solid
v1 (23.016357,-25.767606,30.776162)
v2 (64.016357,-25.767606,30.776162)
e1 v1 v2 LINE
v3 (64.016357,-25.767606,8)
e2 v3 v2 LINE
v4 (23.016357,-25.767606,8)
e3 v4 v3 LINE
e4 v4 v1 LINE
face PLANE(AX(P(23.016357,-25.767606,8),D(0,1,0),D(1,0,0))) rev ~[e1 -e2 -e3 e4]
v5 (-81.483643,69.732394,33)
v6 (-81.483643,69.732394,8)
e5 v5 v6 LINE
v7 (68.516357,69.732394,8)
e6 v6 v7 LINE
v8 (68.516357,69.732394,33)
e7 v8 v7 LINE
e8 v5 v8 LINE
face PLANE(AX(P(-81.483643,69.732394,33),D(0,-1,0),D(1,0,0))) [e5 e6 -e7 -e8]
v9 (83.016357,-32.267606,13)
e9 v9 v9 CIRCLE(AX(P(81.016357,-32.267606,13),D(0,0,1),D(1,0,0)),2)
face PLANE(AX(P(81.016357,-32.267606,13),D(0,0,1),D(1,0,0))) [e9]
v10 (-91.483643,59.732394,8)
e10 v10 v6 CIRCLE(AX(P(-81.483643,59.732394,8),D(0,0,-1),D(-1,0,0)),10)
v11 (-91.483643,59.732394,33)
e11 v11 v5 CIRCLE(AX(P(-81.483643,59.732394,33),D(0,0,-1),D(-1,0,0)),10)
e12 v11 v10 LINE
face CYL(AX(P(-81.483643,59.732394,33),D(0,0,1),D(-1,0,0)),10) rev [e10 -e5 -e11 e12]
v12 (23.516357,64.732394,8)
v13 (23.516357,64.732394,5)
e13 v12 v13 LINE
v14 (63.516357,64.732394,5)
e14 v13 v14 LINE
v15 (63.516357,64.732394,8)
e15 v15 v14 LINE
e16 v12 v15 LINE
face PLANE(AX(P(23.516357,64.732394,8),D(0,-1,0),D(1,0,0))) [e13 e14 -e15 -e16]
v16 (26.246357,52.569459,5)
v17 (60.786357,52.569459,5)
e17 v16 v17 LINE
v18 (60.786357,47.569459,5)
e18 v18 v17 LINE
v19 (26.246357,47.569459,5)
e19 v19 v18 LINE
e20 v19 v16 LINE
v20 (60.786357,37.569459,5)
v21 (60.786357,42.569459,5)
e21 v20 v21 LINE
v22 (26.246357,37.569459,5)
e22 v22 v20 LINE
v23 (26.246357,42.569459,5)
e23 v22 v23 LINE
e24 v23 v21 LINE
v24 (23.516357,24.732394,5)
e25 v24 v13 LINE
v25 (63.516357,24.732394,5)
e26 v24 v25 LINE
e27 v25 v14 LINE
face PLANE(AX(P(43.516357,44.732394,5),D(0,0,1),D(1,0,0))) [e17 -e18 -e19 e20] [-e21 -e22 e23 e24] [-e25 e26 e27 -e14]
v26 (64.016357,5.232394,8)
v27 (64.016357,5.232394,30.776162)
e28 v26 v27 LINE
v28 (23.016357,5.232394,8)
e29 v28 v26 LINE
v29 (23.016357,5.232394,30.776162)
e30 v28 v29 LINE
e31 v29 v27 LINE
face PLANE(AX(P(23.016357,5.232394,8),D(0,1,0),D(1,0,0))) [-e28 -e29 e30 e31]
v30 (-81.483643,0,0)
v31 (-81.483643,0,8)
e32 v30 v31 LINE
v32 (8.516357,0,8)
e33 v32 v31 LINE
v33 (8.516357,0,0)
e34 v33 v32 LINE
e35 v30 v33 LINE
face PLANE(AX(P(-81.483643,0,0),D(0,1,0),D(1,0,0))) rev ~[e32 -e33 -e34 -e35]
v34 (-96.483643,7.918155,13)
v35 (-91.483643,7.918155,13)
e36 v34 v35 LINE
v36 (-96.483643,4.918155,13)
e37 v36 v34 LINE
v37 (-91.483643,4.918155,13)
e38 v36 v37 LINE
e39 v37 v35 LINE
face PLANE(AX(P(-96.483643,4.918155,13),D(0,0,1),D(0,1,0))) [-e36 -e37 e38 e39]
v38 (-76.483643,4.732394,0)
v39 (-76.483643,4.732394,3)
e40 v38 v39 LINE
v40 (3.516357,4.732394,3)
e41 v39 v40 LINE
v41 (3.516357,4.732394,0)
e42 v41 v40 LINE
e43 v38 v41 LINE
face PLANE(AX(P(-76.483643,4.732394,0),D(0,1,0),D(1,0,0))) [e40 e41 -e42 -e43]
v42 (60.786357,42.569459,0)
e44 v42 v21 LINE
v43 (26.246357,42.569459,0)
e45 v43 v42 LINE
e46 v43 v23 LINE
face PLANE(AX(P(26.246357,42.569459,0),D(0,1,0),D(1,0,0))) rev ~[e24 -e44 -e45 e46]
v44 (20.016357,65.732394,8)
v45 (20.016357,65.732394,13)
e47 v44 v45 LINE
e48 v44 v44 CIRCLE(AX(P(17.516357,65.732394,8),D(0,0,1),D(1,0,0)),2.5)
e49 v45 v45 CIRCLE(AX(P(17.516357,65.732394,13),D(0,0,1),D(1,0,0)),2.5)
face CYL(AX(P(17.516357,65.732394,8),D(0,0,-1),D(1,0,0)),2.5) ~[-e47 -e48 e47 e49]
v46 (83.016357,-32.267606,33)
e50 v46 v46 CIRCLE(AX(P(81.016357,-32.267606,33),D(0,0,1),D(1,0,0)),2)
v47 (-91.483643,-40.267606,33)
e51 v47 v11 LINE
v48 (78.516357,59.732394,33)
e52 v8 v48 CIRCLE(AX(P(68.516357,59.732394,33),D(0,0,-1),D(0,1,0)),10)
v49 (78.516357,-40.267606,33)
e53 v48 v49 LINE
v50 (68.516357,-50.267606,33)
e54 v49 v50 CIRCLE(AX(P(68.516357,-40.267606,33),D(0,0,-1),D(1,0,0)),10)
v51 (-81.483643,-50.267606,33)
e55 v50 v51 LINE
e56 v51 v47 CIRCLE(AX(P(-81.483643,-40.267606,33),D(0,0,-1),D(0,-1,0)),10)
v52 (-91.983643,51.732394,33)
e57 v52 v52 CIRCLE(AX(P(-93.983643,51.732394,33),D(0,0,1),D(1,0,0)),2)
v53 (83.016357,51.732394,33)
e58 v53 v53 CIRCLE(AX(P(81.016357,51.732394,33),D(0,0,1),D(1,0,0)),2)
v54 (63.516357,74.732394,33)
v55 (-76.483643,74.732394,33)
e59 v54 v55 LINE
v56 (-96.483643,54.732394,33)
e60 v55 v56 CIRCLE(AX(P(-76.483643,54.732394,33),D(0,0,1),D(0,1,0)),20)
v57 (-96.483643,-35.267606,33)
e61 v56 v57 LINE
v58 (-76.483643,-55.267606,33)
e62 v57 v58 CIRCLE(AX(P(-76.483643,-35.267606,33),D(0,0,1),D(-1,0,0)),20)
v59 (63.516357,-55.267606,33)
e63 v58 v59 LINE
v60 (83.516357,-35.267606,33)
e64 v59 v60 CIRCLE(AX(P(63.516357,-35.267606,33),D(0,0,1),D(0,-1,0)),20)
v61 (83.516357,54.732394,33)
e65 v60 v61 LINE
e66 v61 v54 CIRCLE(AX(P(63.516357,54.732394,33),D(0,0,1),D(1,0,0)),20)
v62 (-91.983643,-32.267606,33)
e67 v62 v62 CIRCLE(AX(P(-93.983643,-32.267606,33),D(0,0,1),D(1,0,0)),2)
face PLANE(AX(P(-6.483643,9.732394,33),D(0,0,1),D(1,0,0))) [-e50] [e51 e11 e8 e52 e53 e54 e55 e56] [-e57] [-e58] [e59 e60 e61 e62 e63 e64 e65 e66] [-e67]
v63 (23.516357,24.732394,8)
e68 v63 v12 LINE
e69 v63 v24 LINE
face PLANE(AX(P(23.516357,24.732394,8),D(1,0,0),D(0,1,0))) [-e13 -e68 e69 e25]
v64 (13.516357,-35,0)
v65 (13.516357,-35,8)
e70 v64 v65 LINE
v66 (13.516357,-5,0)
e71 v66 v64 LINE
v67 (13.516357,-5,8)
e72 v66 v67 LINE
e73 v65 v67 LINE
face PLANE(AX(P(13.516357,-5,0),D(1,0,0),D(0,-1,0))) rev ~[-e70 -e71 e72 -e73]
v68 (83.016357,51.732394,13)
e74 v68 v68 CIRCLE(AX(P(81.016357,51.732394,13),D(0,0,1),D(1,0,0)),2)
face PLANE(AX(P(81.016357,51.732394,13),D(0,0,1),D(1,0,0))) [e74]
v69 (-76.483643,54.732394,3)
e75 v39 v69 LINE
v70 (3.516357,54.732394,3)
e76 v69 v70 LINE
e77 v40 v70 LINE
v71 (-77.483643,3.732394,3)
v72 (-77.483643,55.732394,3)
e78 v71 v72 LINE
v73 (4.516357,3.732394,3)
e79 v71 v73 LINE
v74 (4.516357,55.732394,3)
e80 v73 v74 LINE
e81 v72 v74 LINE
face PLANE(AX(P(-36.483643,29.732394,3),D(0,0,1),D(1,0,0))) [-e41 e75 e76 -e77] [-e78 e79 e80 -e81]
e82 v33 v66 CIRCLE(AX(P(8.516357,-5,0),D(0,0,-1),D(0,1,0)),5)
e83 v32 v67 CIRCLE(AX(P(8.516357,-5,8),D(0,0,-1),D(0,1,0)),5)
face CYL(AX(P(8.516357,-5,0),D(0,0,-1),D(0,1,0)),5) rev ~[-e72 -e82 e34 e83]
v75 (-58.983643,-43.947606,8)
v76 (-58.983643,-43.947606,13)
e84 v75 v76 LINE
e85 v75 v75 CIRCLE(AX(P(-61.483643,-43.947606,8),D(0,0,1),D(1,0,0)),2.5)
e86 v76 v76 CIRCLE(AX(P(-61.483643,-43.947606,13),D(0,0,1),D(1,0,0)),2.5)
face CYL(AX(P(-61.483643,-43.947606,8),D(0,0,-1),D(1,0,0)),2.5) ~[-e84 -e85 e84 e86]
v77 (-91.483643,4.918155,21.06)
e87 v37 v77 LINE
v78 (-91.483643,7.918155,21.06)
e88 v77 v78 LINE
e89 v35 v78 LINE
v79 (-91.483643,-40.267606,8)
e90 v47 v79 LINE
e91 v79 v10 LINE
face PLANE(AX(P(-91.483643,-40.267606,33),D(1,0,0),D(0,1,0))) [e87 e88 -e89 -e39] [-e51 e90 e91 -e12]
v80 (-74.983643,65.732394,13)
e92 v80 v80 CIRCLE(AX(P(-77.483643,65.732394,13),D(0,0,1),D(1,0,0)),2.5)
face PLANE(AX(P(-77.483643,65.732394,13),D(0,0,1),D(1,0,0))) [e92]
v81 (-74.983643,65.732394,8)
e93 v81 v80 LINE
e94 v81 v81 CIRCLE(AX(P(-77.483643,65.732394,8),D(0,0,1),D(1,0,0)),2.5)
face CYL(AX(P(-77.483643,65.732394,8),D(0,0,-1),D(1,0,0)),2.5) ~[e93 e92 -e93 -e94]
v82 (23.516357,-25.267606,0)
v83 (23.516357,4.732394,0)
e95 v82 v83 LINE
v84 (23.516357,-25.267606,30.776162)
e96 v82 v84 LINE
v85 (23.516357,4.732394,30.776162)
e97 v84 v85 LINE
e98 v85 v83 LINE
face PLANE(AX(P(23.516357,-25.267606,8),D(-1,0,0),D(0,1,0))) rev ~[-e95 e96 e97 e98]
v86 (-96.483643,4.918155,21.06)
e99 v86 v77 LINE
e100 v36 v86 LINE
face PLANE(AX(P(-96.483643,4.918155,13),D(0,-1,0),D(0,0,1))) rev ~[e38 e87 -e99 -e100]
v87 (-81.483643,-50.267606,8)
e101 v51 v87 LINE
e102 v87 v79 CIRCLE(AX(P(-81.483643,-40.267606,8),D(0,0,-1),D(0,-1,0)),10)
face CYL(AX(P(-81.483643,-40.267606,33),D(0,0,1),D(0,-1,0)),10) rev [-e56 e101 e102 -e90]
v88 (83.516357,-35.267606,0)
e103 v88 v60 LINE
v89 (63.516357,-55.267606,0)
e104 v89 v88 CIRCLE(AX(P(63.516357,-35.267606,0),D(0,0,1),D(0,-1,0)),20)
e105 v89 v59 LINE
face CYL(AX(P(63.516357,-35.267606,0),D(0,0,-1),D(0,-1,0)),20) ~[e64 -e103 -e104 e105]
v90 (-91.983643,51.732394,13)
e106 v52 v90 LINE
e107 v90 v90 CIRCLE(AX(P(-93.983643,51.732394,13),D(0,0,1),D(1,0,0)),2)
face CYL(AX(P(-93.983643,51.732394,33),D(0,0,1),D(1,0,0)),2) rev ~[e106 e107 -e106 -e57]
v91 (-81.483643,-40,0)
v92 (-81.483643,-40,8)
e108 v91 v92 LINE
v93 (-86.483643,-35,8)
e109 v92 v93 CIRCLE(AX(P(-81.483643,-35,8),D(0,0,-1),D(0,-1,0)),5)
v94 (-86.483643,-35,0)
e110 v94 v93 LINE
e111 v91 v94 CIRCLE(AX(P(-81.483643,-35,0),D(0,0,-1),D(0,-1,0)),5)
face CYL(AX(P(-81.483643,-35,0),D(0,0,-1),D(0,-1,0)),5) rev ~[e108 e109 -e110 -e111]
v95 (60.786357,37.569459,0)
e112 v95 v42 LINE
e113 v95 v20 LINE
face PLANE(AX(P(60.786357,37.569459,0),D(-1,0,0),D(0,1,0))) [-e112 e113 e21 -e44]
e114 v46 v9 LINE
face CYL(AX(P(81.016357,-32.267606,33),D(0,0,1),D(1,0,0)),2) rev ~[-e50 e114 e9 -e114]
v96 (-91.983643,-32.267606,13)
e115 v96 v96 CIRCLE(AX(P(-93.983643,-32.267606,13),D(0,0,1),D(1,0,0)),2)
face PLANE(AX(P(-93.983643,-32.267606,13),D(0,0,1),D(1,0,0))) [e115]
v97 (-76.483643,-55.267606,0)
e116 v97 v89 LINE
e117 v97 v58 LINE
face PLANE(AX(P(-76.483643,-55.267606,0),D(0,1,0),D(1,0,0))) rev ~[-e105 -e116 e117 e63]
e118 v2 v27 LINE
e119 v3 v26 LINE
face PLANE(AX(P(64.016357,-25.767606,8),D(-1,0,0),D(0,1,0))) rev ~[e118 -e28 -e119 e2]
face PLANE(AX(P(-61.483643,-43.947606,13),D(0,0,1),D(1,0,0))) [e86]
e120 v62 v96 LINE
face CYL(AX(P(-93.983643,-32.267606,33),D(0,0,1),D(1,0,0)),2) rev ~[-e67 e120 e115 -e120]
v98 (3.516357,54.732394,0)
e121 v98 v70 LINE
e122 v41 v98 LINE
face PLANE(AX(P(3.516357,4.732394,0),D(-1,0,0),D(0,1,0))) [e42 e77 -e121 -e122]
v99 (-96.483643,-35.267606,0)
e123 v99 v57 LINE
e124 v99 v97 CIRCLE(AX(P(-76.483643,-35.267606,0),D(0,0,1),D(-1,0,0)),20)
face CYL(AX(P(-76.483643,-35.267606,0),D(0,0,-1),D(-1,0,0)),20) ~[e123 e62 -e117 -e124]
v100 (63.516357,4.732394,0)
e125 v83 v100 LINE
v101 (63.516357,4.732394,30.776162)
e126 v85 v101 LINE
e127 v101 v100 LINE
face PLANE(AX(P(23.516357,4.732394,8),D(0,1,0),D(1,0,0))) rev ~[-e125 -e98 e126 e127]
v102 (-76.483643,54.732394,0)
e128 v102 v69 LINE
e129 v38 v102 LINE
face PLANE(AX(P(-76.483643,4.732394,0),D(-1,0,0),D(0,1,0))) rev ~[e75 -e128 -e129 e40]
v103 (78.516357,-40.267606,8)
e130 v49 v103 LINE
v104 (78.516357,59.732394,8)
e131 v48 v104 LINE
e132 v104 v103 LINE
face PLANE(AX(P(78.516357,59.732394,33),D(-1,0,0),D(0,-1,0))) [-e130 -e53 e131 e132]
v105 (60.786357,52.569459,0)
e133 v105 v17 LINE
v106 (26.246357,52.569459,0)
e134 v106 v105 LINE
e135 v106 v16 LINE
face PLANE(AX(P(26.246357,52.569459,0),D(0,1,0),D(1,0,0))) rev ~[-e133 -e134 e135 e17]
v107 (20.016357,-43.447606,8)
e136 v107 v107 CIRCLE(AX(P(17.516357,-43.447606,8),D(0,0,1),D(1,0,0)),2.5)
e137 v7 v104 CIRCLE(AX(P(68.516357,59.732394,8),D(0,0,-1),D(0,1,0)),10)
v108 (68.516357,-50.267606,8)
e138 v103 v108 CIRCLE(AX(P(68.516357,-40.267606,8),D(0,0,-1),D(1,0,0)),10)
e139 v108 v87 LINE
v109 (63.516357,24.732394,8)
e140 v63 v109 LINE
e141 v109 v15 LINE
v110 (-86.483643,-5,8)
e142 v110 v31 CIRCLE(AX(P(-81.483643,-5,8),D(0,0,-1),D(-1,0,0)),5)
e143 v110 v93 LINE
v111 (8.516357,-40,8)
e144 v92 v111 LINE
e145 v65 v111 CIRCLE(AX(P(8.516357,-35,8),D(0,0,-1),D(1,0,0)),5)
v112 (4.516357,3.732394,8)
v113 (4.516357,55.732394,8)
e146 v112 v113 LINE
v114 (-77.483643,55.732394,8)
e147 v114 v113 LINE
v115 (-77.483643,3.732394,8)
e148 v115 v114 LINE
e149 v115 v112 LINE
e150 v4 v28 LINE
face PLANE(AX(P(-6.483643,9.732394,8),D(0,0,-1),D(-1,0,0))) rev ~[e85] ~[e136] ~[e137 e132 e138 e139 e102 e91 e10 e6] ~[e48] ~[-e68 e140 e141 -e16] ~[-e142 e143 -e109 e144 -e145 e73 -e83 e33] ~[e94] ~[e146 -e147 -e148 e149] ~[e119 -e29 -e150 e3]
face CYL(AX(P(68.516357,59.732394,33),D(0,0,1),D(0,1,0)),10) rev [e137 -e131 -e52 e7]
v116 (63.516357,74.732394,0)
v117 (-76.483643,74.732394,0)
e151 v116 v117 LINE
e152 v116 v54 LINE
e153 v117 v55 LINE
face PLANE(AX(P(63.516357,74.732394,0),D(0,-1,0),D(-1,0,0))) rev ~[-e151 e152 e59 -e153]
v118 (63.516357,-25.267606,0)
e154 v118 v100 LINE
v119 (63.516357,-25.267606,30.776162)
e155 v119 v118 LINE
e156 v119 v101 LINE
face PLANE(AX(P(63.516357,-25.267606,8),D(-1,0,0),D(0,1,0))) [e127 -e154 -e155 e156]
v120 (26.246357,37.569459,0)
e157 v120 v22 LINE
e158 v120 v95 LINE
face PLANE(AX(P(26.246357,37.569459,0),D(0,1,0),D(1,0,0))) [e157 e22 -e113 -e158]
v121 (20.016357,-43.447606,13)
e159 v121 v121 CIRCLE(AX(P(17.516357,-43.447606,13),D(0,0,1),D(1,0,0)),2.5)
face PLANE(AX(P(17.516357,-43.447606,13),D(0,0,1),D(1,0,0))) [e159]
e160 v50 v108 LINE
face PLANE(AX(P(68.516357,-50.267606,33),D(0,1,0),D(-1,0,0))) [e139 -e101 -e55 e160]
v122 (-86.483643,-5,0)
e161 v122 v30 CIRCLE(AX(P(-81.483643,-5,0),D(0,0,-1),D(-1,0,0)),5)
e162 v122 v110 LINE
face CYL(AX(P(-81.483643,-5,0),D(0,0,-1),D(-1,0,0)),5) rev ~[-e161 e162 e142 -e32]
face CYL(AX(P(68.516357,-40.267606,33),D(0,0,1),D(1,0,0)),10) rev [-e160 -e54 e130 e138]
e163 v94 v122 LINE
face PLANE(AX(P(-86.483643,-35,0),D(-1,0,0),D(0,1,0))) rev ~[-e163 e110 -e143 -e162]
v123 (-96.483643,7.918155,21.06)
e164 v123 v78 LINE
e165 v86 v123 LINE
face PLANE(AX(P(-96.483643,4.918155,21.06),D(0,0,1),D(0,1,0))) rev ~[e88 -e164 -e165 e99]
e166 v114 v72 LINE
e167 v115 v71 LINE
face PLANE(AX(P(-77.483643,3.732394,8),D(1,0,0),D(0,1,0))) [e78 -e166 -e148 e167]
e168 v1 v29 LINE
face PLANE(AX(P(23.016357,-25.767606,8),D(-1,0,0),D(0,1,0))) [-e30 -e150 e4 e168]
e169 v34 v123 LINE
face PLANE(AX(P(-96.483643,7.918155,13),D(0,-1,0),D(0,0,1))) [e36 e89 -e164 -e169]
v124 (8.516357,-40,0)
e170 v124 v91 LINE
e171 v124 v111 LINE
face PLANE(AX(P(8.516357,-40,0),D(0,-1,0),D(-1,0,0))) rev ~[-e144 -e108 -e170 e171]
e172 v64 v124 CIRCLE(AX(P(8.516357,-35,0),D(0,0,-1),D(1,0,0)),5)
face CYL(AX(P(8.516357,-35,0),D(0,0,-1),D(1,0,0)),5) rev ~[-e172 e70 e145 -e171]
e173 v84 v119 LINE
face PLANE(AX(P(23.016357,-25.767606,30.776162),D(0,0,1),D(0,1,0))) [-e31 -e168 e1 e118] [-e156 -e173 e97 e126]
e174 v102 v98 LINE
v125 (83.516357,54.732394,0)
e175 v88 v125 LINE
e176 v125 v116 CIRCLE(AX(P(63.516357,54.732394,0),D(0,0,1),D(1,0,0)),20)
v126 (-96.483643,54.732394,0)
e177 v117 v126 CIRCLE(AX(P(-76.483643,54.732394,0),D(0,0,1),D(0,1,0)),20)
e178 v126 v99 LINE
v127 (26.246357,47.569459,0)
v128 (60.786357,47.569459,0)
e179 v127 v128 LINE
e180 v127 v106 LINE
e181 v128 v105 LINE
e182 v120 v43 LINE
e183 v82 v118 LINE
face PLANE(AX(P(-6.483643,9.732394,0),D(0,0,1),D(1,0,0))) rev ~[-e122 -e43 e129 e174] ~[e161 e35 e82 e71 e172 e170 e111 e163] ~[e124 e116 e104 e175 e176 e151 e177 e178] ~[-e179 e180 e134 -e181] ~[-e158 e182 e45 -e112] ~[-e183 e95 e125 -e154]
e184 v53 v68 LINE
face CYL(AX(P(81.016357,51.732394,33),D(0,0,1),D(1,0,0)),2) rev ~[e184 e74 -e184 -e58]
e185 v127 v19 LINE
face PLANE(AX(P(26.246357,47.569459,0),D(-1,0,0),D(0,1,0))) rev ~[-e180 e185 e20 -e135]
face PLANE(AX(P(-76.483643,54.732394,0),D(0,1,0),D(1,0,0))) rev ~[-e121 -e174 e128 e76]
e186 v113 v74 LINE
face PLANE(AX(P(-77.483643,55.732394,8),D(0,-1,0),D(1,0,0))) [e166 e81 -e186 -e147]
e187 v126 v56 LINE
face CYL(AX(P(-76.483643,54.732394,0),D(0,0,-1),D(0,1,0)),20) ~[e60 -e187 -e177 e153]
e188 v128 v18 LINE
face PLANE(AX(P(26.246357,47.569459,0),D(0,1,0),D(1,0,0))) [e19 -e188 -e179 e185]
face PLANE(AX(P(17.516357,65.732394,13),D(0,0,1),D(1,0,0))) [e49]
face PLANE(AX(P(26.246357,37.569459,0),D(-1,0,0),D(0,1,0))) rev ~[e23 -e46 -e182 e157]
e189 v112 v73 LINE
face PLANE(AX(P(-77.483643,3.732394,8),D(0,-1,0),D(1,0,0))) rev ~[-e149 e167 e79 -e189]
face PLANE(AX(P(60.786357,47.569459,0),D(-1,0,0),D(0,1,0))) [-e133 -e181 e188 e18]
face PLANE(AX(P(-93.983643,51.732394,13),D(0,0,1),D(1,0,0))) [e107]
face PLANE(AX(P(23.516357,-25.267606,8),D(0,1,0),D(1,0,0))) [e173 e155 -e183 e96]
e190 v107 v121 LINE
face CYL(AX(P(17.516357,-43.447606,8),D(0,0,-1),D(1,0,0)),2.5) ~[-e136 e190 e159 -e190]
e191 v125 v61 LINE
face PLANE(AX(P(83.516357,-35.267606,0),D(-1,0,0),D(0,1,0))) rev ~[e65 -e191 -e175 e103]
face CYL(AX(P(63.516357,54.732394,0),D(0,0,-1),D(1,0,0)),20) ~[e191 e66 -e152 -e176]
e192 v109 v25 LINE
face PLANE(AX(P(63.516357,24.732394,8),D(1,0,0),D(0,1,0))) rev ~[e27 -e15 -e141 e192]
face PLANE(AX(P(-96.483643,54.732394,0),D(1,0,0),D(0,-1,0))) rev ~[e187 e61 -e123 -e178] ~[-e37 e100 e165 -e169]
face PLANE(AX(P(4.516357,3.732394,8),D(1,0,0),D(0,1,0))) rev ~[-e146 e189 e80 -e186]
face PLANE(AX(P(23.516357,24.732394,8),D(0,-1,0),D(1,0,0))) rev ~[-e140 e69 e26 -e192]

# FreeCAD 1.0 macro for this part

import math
import FreeCAD as App
import Part
import Sketcher

doc = App.newDocument("Part")
body = doc.addObject("PartDesign::Body", "Body")

# Sketch on XY plane
sketch1 = body.newObject("Sketcher::SketchObject", "Sketch")
sketch1.AttachmentSupport = (doc.getObject("XY_Plane"), [""])
sketch1.MapMode = "FlatFace"
sketch1.addGeometry([
    Part.ArcOfCircle(Part.Circle(App.Vector(-76.483643, 54.732394, 0), App.Vector(0, 0, 1), 20), math.radians(90), math.radians(180)),  # 0
    Part.LineSegment(App.Vector(-96.483643, 54.732394, 0), App.Vector(-96.483643, -35.267606, 0)),  # 1
    Part.ArcOfCircle(Part.Circle(App.Vector(-76.483643, -35.267606, 0), App.Vector(0, 0, 1), 20), math.radians(-180), math.radians(-90)),  # 2
    Part.LineSegment(App.Vector(-76.483643, -55.267606, 0), App.Vector(63.516357, -55.267606, 0)),  # 3
    Part.ArcOfCircle(Part.Circle(App.Vector(63.516357, -35.267606, 0), App.Vector(0, 0, 1), 20), math.radians(-90), math.radians(0)),  # 4
    Part.LineSegment(App.Vector(83.516357, -35.267606, 0), App.Vector(83.516357, 54.732394, 0)),  # 5
    Part.ArcOfCircle(Part.Circle(App.Vector(63.516357, 54.732394, 0), App.Vector(0, 0, 1), 20), math.radians(0), math.radians(90)),  # 6
    Part.LineSegment(App.Vector(63.516357, 74.732394, 0), App.Vector(-76.483643, 74.732394, 0)),  # 7
    Part.LineSegment(App.Vector(-86.483643, -35, 0), App.Vector(-86.483643, -5, 0)),  # 8
    Part.ArcOfCircle(Part.Circle(App.Vector(-81.483643, -5, 0), App.Vector(0, 0, 1), 5), math.radians(90), math.radians(180)),  # 9
    Part.LineSegment(App.Vector(-81.483643, 0, 0), App.Vector(8.516357, 0, 0)),  # 10
    Part.ArcOfCircle(Part.Circle(App.Vector(8.516357, -5, 0), App.Vector(0, 0, 1), 5), math.radians(0), math.radians(90)),  # 11
    Part.LineSegment(App.Vector(13.516357, -5, 0), App.Vector(13.516357, -35, 0)),  # 12
    Part.ArcOfCircle(Part.Circle(App.Vector(8.516357, -35, 0), App.Vector(0, 0, 1), 5), math.radians(-90), math.radians(0)),  # 13
    Part.LineSegment(App.Vector(8.516357, -40, 0), App.Vector(-81.483643, -40, 0)),  # 14
    Part.ArcOfCircle(Part.Circle(App.Vector(-81.483643, -35, 0), App.Vector(0, 0, 1), 5), math.radians(180), math.radians(270)),  # 15
    Part.LineSegment(App.Vector(63.516357, -25.267606, 0), App.Vector(23.516357, -25.267606, 0)),  # 16
    Part.LineSegment(App.Vector(23.516357, -25.267606, 0), App.Vector(23.516357, 4.732394, 0)),  # 17
    Part.LineSegment(App.Vector(23.516357, 4.732394, 0), App.Vector(63.516357, 4.732394, 0)),  # 18
    Part.LineSegment(App.Vector(63.516357, 4.732394, 0), App.Vector(63.516357, -25.267606, 0)),  # 19
    Part.LineSegment(App.Vector(3.516357, 4.732394, 0), App.Vector(-76.483643, 4.732394, 0)),  # 20
    Part.LineSegment(App.Vector(-76.483643, 4.732394, 0), App.Vector(-76.483643, 54.732394, 0)),  # 21
    Part.LineSegment(App.Vector(-76.483643, 54.732394, 0), App.Vector(3.516357, 54.732394, 0)),  # 22
    Part.LineSegment(App.Vector(3.516357, 54.732394, 0), App.Vector(3.516357, 4.732394, 0)),  # 23
    Part.LineSegment(App.Vector(60.786357, 37.569459, 0), App.Vector(26.246357, 37.569459, 0)),  # 24
    Part.LineSegment(App.Vector(26.246357, 37.569459, 0), App.Vector(26.246357, 42.569459, 0)),  # 25
    Part.LineSegment(App.Vector(26.246357, 42.569459, 0), App.Vector(60.786357, 42.569459, 0)),  # 26
    Part.LineSegment(App.Vector(60.786357, 42.569459, 0), App.Vector(60.786357, 37.569459, 0)),  # 27
    Part.LineSegment(App.Vector(60.786357, 47.569459, 0), App.Vector(26.246357, 47.569459, 0)),  # 28
    Part.LineSegment(App.Vector(26.246357, 47.569459, 0), App.Vector(26.246357, 52.569459, 0)),  # 29
    Part.LineSegment(App.Vector(26.246357, 52.569459, 0), App.Vector(60.786357, 52.569459, 0)),  # 30
    Part.LineSegment(App.Vector(60.786357, 52.569459, 0), App.Vector(60.786357, 47.569459, 0)),  # 31
], False)
sketch1.addConstraint([
    Sketcher.Constraint("Tangent", 0, 2, 1, 1),
    Sketcher.Constraint("Tangent", 1, 2, 2, 1),
    Sketcher.Constraint("Tangent", 2, 2, 3, 1),
    Sketcher.Constraint("Tangent", 3, 2, 4, 1),
    Sketcher.Constraint("Tangent", 4, 2, 5, 1),
    Sketcher.Constraint("Tangent", 5, 2, 6, 1),
    Sketcher.Constraint("Tangent", 6, 2, 7, 1),
    Sketcher.Constraint("Tangent", 7, 2, 0, 1),
    Sketcher.Constraint("Tangent", 8, 2, 9, 2),
    Sketcher.Constraint("Tangent", 9, 1, 10, 1),
    Sketcher.Constraint("Tangent", 10, 2, 11, 2),
    Sketcher.Constraint("Tangent", 11, 1, 12, 1),
    Sketcher.Constraint("Tangent", 12, 2, 13, 2),
    Sketcher.Constraint("Tangent", 13, 1, 14, 1),
    Sketcher.Constraint("Tangent", 14, 2, 15, 2),
    Sketcher.Constraint("Tangent", 15, 1, 8, 1),
    Sketcher.Constraint("Coincident", 16, 2, 17, 1),
    Sketcher.Constraint("Coincident", 17, 2, 18, 1),
    Sketcher.Constraint("Coincident", 18, 2, 19, 1),
    Sketcher.Constraint("Coincident", 19, 2, 16, 1),
    Sketcher.Constraint("Coincident", 20, 2, 21, 1),
    Sketcher.Constraint("Coincident", 21, 2, 22, 1),
    Sketcher.Constraint("Coincident", 22, 2, 23, 1),
    Sketcher.Constraint("Coincident", 23, 2, 20, 1),
    Sketcher.Constraint("Coincident", 24, 2, 25, 1),
    Sketcher.Constraint("Coincident", 25, 2, 26, 1),
    Sketcher.Constraint("Coincident", 26, 2, 27, 1),
    Sketcher.Constraint("Coincident", 27, 2, 24, 1),
    Sketcher.Constraint("Coincident", 28, 2, 29, 1),
    Sketcher.Constraint("Coincident", 29, 2, 30, 1),
    Sketcher.Constraint("Coincident", 30, 2, 31, 1),
    Sketcher.Constraint("Coincident", 31, 2, 28, 1),
    Sketcher.Constraint("Vertical", 1),
    Sketcher.Constraint("Horizontal", 3),
    Sketcher.Constraint("Vertical", 5),
    Sketcher.Constraint("Horizontal", 7),
    Sketcher.Constraint("Vertical", 8),
    Sketcher.Constraint("Horizontal", 10),
    Sketcher.Constraint("Vertical", 12),
    Sketcher.Constraint("Horizontal", 14),
    Sketcher.Constraint("Horizontal", 16),
    Sketcher.Constraint("Vertical", 17),
    Sketcher.Constraint("Horizontal", 18),
    Sketcher.Constraint("Vertical", 19),
    Sketcher.Constraint("Horizontal", 20),
    Sketcher.Constraint("Vertical", 21),
    Sketcher.Constraint("Horizontal", 22),
    Sketcher.Constraint("Vertical", 23),
    Sketcher.Constraint("Horizontal", 24),
    Sketcher.Constraint("Vertical", 25),
    Sketcher.Constraint("Horizontal", 26),
    Sketcher.Constraint("Vertical", 27),
    Sketcher.Constraint("Horizontal", 28),
    Sketcher.Constraint("Vertical", 29),
    Sketcher.Constraint("Horizontal", 30),
    Sketcher.Constraint("Vertical", 31),
    Sketcher.Constraint("Coincident", 21, 2, 0, 3),
    Sketcher.Constraint("Equal", 0, 2),
    Sketcher.Constraint("Equal", 2, 4),
    Sketcher.Constraint("Equal", 4, 6),
    Sketcher.Constraint("Equal", 9, 11),
    Sketcher.Constraint("Equal", 11, 13),
    Sketcher.Constraint("Equal", 13, 15),
    Sketcher.Constraint("PointOnObject", 9, 1, -1),
    Sketcher.Constraint("Horizontal", 18, 2, 20, 2),
    Sketcher.Constraint("Vertical", 6, 2, 18, 2),
    Sketcher.Constraint("Vertical", 25, 2, 28, 2),
    Sketcher.Constraint("Vertical", 27, 2, 30, 2),
    Sketcher.Constraint("Equal", 14, 1),
    Sketcher.Constraint("Equal", 12, 17),
    Sketcher.Constraint("Equal", 27, 29),
    Sketcher.Constraint("Radius", 0, 20.0),
    Sketcher.Constraint("Radius", 9, 5.0),
    Sketcher.Constraint("DistanceX", 3, 1, 3, 2, 140.0),
    Sketcher.Constraint("DistanceX", 10, 1, 10, 2, 90.0),
    Sketcher.Constraint("DistanceX", 16, 2, 16, 1, 40.0),
    Sketcher.Constraint("DistanceX", 20, 2, 20, 1, 80.0),
    Sketcher.Constraint("DistanceY", 8, 1, 8, 2, 30.0),
    Sketcher.Constraint("DistanceY", 21, 1, 21, 2, 50.0),
    Sketcher.Constraint("DistanceY", 25, 1, 25, 2, 5.0),
    Sketcher.Constraint("DistanceX", 9, 3, 2, 3, 5.0),
    Sketcher.Constraint("DistanceY", 25, 2, 28, 2, 5.0),
    Sketcher.Constraint("DistanceX", 24, 2, 24, 1, 34.54),
    Sketcher.Constraint("DistanceX", 22, 2, 24, 2, 22.73),
    Sketcher.Constraint("DistanceY", -1, 1, 24, 2, 37.569459),
    Sketcher.Constraint("DistanceX", 0, 3, -1, 1, 76.483643),
    Sketcher.Constraint("DistanceY", -1, 1, 0, 3, 54.732394),
])
pad1 = body.newObject("PartDesign::Pad", "Pad")
pad1.Profile = sketch1
pad1.Length = 33

# Sketch on XY plane
sketch2 = body.newObject("Sketcher::SketchObject", "Sketch001")
sketch2.AttachmentSupport = (doc.getObject("XY_Plane"), [""])
sketch2.MapMode = "FlatFace"
sketch2.AttachmentOffset = App.Placement(App.Vector(0, 0, 33), App.Rotation())
sketch2.addGeometry([
    Part.LineSegment(App.Vector(68.516357, 69.732394, 0), App.Vector(-81.483643, 69.732394, 0)),  # 0
    Part.ArcOfCircle(Part.Circle(App.Vector(-81.483643, 59.732394, 0), App.Vector(0, 0, 1), 10), math.radians(90), math.radians(180)),  # 1
    Part.LineSegment(App.Vector(-91.483643, 59.732394, 0), App.Vector(-91.483643, -40.267606, 0)),  # 2
    Part.ArcOfCircle(Part.Circle(App.Vector(-81.483643, -40.267606, 0), App.Vector(0, 0, 1), 10), math.radians(-180), math.radians(-90)),  # 3
    Part.LineSegment(App.Vector(-81.483643, -50.267606, 0), App.Vector(68.516357, -50.267606, 0)),  # 4
    Part.ArcOfCircle(Part.Circle(App.Vector(68.516357, -40.267606, 0), App.Vector(0, 0, 1), 10), math.radians(-90), math.radians(0)),  # 5
    Part.LineSegment(App.Vector(78.516357, -40.267606, 0), App.Vector(78.516357, 59.732394, 0)),  # 6
    Part.ArcOfCircle(Part.Circle(App.Vector(68.516357, 59.732394, 0), App.Vector(0, 0, 1), 10), math.radians(0), math.radians(90)),  # 7
], False)
sketch2.addConstraint([
    Sketcher.Constraint("Tangent", 0, 2, 1, 1),
    Sketcher.Constraint("Tangent", 1, 2, 2, 1),
    Sketcher.Constraint("Tangent", 2, 2, 3, 1),
    Sketcher.Constraint("Tangent", 3, 2, 4, 1),
    Sketcher.Constraint("Tangent", 4, 2, 5, 1),
    Sketcher.Constraint("Tangent", 5, 2, 6, 1),
    Sketcher.Constraint("Tangent", 6, 2, 7, 1),
    Sketcher.Constraint("Tangent", 7, 2, 0, 1),
    Sketcher.Constraint("Horizontal", 0),
    Sketcher.Constraint("Vertical", 2),
    Sketcher.Constraint("Horizontal", 4),
    Sketcher.Constraint("Vertical", 6),
    Sketcher.Constraint("Equal", 1, 3),
    Sketcher.Constraint("Equal", 3, 5),
    Sketcher.Constraint("Equal", 5, 7),
    Sketcher.Constraint("Radius", 1, 10.0),
    Sketcher.Constraint("DistanceX", 0, 2, 0, 1, 150.0),
    Sketcher.Constraint("DistanceY", 2, 2, 2, 1, 100.0),
    Sketcher.Constraint("DistanceX", 1, 3, -1, 1, 81.483643),
    Sketcher.Constraint("DistanceY", -1, 1, 1, 3, 59.732394),
])
pocket1 = body.newObject("PartDesign::Pocket", "Pocket")
pocket1.Profile = sketch2
pocket1.Length = 25

# Sketch on XY plane
sketch3 = body.newObject("Sketcher::SketchObject", "Sketch002")
sketch3.AttachmentSupport = (doc.getObject("XY_Plane"), [""])
sketch3.MapMode = "FlatFace"
sketch3.AttachmentOffset = App.Placement(App.Vector(0, 0, 8), App.Rotation())
sketch3.addGeometry([
    Part.LineSegment(App.Vector(23.516357, 64.732394, 0), App.Vector(23.516357, 24.732394, 0)),
    Part.LineSegment(App.Vector(23.516357, 24.732394, 0), App.Vector(63.516357, 24.732394, 0)),
    Part.LineSegment(App.Vector(63.516357, 24.732394, 0), App.Vector(63.516357, 64.732394, 0)),
    Part.LineSegment(App.Vector(63.516357, 64.732394, 0), App.Vector(23.516357, 64.732394, 0)),
], False)
sketch3.addConstraint([
    Sketcher.Constraint("Coincident", 0, 2, 1, 1),
    Sketcher.Constraint("Coincident", 1, 2, 2, 1),
    Sketcher.Constraint("Coincident", 2, 2, 3, 1),
    Sketcher.Constraint("Coincident", 3, 2, 0, 1),
    Sketcher.Constraint("Vertical", 0),
    Sketcher.Constraint("Horizontal", 1),
    Sketcher.Constraint("Vertical", 2),
    Sketcher.Constraint("Horizontal", 3),
    Sketcher.Constraint("Equal", 3, 0),
    Sketcher.Constraint("DistanceX", 1, 1, 1, 2, 40.0),
    Sketcher.Constraint("DistanceX", -1, 1, 0, 2, 23.516357),
    Sketcher.Constraint("DistanceY", -1, 1, 0, 2, 24.732394),
])
pocket2 = body.newObject("PartDesign::Pocket", "Pocket001")
pocket2.Profile = sketch3
pocket2.Length = 3

# Sketch on XY plane
sketch4 = body.newObject("Sketcher::SketchObject", "Sketch003")
sketch4.AttachmentSupport = (doc.getObject("XY_Plane"), [""])
sketch4.MapMode = "FlatFace"
sketch4.AttachmentOffset = App.Placement(App.Vector(0, 0, 8), App.Rotation())
sketch4.addGeometry([
    Part.LineSegment(App.Vector(23.016357, 5.232394, 0), App.Vector(23.016357, -25.767606, 0)),  # 0
    Part.LineSegment(App.Vector(23.016357, -25.767606, 0), App.Vector(64.016357, -25.767606, 0)),  # 1
    Part.LineSegment(App.Vector(64.016357, -25.767606, 0), App.Vector(64.016357, 5.232394, 0)),  # 2
    Part.LineSegment(App.Vector(64.016357, 5.232394, 0), App.Vector(23.016357, 5.232394, 0)),  # 3
    Part.LineSegment(App.Vector(63.516357, -25.267606, 0), App.Vector(23.516357, -25.267606, 0)),  # 4
    Part.LineSegment(App.Vector(23.516357, -25.267606, 0), App.Vector(23.516357, 4.732394, 0)),  # 5
    Part.LineSegment(App.Vector(23.516357, 4.732394, 0), App.Vector(63.516357, 4.732394, 0)),  # 6
    Part.LineSegment(App.Vector(63.516357, 4.732394, 0), App.Vector(63.516357, -25.267606, 0)),  # 7
], False)
sketch4.addConstraint([
    Sketcher.Constraint("Coincident", 0, 2, 1, 1),
    Sketcher.Constraint("Coincident", 1, 2, 2, 1),
    Sketcher.Constraint("Coincident", 2, 2, 3, 1),
    Sketcher.Constraint("Coincident", 3, 2, 0, 1),
    Sketcher.Constraint("Coincident", 4, 2, 5, 1),
    Sketcher.Constraint("Coincident", 5, 2, 6, 1),
    Sketcher.Constraint("Coincident", 6, 2, 7, 1),
    Sketcher.Constraint("Coincident", 7, 2, 4, 1),
    Sketcher.Constraint("Vertical", 0),
    Sketcher.Constraint("Horizontal", 1),
    Sketcher.Constraint("Vertical", 2),
    Sketcher.Constraint("Horizontal", 3),
    Sketcher.Constraint("Horizontal", 4),
    Sketcher.Constraint("Vertical", 5),
    Sketcher.Constraint("Horizontal", 6),
    Sketcher.Constraint("Vertical", 7),
    Sketcher.Constraint("DistanceX", 1, 1, 1, 2, 41.0),
    Sketcher.Constraint("DistanceX", 4, 2, 4, 1, 40.0),
    Sketcher.Constraint("DistanceY", 0, 2, 0, 1, 31.0),
    Sketcher.Constraint("DistanceY", 5, 1, 5, 2, 30.0),
    Sketcher.Constraint("DistanceX", 0, 2, 4, 2, 0.5),
    Sketcher.Constraint("DistanceY", 0, 2, 4, 2, 0.5),
    Sketcher.Constraint("DistanceX", -1, 1, 0, 2, 23.016357),
    Sketcher.Constraint("DistanceY", 0, 2, -1, 1, 25.767606),
])
pad2 = body.newObject("PartDesign::Pad", "Pad001")
pad2.Profile = sketch4
pad2.Length = 30

# Sketch on XY plane
sketch5 = body.newObject("Sketcher::SketchObject", "Sketch004")
sketch5.AttachmentSupport = (doc.getObject("XY_Plane"), [""])
sketch5.MapMode = "FlatFace"
sketch5.AttachmentOffset = App.Placement(App.Vector(0, 0, 8), App.Rotation())
sketch5.addGeometry([
    Part.LineSegment(App.Vector(-77.483643, 55.732394, 0), App.Vector(-77.483643, 3.732394, 0)),  # 0
    Part.LineSegment(App.Vector(-77.483643, 3.732394, 0), App.Vector(4.516357, 3.732394, 0)),  # 1
    Part.LineSegment(App.Vector(4.516357, 3.732394, 0), App.Vector(4.516357, 55.732394, 0)),  # 2
    Part.LineSegment(App.Vector(4.516357, 55.732394, 0), App.Vector(-77.483643, 55.732394, 0)),  # 3
    Part.LineSegment(App.Vector(3.516357, 4.732394, 0), App.Vector(-76.483643, 4.732394, 0)),  # 4
    Part.LineSegment(App.Vector(-76.483643, 4.732394, 0), App.Vector(-76.483643, 54.732394, 0)),  # 5
    Part.LineSegment(App.Vector(-76.483643, 54.732394, 0), App.Vector(3.516357, 54.732394, 0)),  # 6
    Part.LineSegment(App.Vector(3.516357, 54.732394, 0), App.Vector(3.516357, 4.732394, 0)),  # 7
], False)
sketch5.addConstraint([
    Sketcher.Constraint("Coincident", 0, 2, 1, 1),
    Sketcher.Constraint("Coincident", 1, 2, 2, 1),
    Sketcher.Constraint("Coincident", 2, 2, 3, 1),
    Sketcher.Constraint("Coincident", 3, 2, 0, 1),
    Sketcher.Constraint("Coincident", 4, 2, 5, 1),
    Sketcher.Constraint("Coincident", 5, 2, 6, 1),
    Sketcher.Constraint("Coincident", 6, 2, 7, 1),
    Sketcher.Constraint("Coincident", 7, 2, 4, 1),
    Sketcher.Constraint("Vertical", 0),
    Sketcher.Constraint("Horizontal", 1),
    Sketcher.Constraint("Vertical", 2),
    Sketcher.Constraint("Horizontal", 3),
    Sketcher.Constraint("Horizontal", 4),
    Sketcher.Constraint("Vertical", 5),
    Sketcher.Constraint("Horizontal", 6),
    Sketcher.Constraint("Vertical", 7),
    Sketcher.Constraint("DistanceX", 1, 1, 1, 2, 82.0),
    Sketcher.Constraint("DistanceX", 4, 2, 4, 1, 80.0),
    Sketcher.Constraint("DistanceY", 0, 2, 0, 1, 52.0),
    Sketcher.Constraint("DistanceY", 5, 1, 5, 2, 50.0),
    Sketcher.Constraint("DistanceX", 0, 2, 4, 2, 1.0),
    Sketcher.Constraint("DistanceY", 0, 2, 4, 2, 1.0),
    Sketcher.Constraint("DistanceX", 0, 2, -1, 1, 77.483643),
    Sketcher.Constraint("DistanceY", -1, 1, 0, 2, 3.732394),
])
pocket3 = body.newObject("PartDesign::Pocket", "Pocket002")
pocket3.Profile = sketch5
pocket3.Length = 5

# Sketch on XY plane
sketch6 = body.newObject("Sketcher::SketchObject", "Sketch005")
sketch6.AttachmentSupport = (doc.getObject("XY_Plane"), [""])
sketch6.MapMode = "FlatFace"
sketch6.AttachmentOffset = App.Placement(App.Vector(0, 0, 8), App.Rotation())
sketch6.addGeometry([
    Part.Circle(App.Vector(-77.483643, 65.732394, 0), App.Vector(0, 0, 1), 2.5),
    Part.Circle(App.Vector(17.516357, 65.732394, 0), App.Vector(0, 0, 1), 2.5),
    Part.Circle(App.Vector(-61.483643, -43.947606, 0), App.Vector(0, 0, 1), 2.5),
    Part.Circle(App.Vector(17.516357, -43.447606, 0), App.Vector(0, 0, 1), 2.5),
], False)
sketch6.addConstraint([
    Sketcher.Constraint("Equal", 0, 1),
    Sketcher.Constraint("Equal", 1, 2),
    Sketcher.Constraint("Equal", 2, 3),
    Sketcher.Constraint("Horizontal", 0, 3, 1, 3),
    Sketcher.Constraint("Vertical", 1, 3, 3, 3),
    Sketcher.Constraint("Diameter", 0, 5.0),
    Sketcher.Constraint("DistanceX", 0, 3, 1, 3, 95.0),
    Sketcher.Constraint("DistanceX", 0, 3, 2, 3, 16.0),
    Sketcher.Constraint("DistanceY", 2, 3, 3, 3, 0.5),
    Sketcher.Constraint("DistanceY", 2, 3, 0, 3, 109.68),
    Sketcher.Constraint("DistanceX", 0, 3, -1, 1, 77.483643),
    Sketcher.Constraint("DistanceY", -1, 1, 0, 3, 65.732394),
])
pad3 = body.newObject("PartDesign::Pad", "Pad002")
pad3.Profile = sketch6
pad3.Length = 5

# Sketch on YZ plane
sketch7 = body.newObject("Sketcher::SketchObject", "Sketch006")
sketch7.AttachmentSupport = (doc.getObject("YZ_Plane"), [""])
sketch7.MapMode = "FlatFace"
sketch7.AttachmentOffset = App.Placement(App.Vector(0, 0, 23.016357), App.Rotation())
sketch7.addGeometry([
    Part.LineSegment(App.Vector(5.232394, 30.776162, 0), App.Vector(-25.767606, 30.776162, 0)),
    Part.LineSegment(App.Vector(-25.767606, 30.776162, 0), App.Vector(-25.767606, 38, 0)),
    Part.LineSegment(App.Vector(-25.767606, 38, 0), App.Vector(5.232394, 38, 0)),
    Part.LineSegment(App.Vector(5.232394, 38, 0), App.Vector(5.232394, 30.776162, 0)),
], False)
sketch7.addConstraint([
    Sketcher.Constraint("Coincident", 0, 2, 1, 1),
    Sketcher.Constraint("Coincident", 1, 2, 2, 1),
    Sketcher.Constraint("Coincident", 2, 2, 3, 1),
    Sketcher.Constraint("Coincident", 3, 2, 0, 1),
    Sketcher.Constraint("Horizontal", 0),
    Sketcher.Constraint("Vertical", 1),
    Sketcher.Constraint("Horizontal", 2),
    Sketcher.Constraint("Vertical", 3),
    Sketcher.Constraint("DistanceX", 0, 2, 0, 1, 31.0),
    Sketcher.Constraint("DistanceY", -1, 1, 1, 2, 38.0),
    Sketcher.Constraint("DistanceY", 1, 1, 1, 2, 7.223838),
    Sketcher.Constraint("DistanceX", 0, 2, -1, 1, 25.767606),
])
pocket4 = body.newObject("PartDesign::Pocket", "Pocket003")
pocket4.Profile = sketch7
pocket4.Length = 41
pocket4.Reversed = True

# Sketch on XY plane
sketch8 = body.newObject("Sketcher::SketchObject", "Sketch007")
sketch8.AttachmentSupport = (doc.getObject("XY_Plane"), [""])
sketch8.MapMode = "FlatFace"
sketch8.AttachmentOffset = App.Placement(App.Vector(0, 0, 33), App.Rotation())
sketch8.addGeometry([
    Part.Circle(App.Vector(-93.983643, 51.732394, 0), App.Vector(0, 0, 1), 2),
    Part.Circle(App.Vector(81.016357, 51.732394, 0), App.Vector(0, 0, 1), 2),
    Part.Circle(App.Vector(81.016357, -32.267606, 0), App.Vector(0, 0, 1), 2),
    Part.Circle(App.Vector(-93.983643, -32.267606, 0), App.Vector(0, 0, 1), 2),
], False)
sketch8.addConstraint([
    Sketcher.Constraint("Equal", 0, 1),
    Sketcher.Constraint("Equal", 1, 2),
    Sketcher.Constraint("Equal", 2, 3),
    Sketcher.Constraint("Horizontal", 0, 3, 1, 3),
    Sketcher.Constraint("Horizontal", 2, 3, 3, 3),
    Sketcher.Constraint("Vertical", 1, 3, 2, 3),
    Sketcher.Constraint("Vertical", 0, 3, 3, 3),
    Sketcher.Constraint("Diameter", 0, 4.0),
    Sketcher.Constraint("DistanceX", 0, 3, 1, 3, 175.0),
    Sketcher.Constraint("DistanceY", 2, 3, 1, 3, 84.0),
    Sketcher.Constraint("DistanceX", 0, 3, -1, 1, 93.983643),
    Sketcher.Constraint("DistanceY", -1, 1, 0, 3, 51.732394),
])
pocket5 = body.newObject("PartDesign::Pocket", "Pocket004")
pocket5.Profile = sketch8
pocket5.Length = 20

# Sketch on YZ plane
sketch9 = body.newObject("Sketcher::SketchObject", "Sketch008")
sketch9.AttachmentSupport = (doc.getObject("YZ_Plane"), [""])
sketch9.MapMode = "FlatFace"
sketch9.AttachmentOffset = App.Placement(App.Vector(0, 0, -96.483643), App.Rotation())
sketch9.addGeometry([
    Part.LineSegment(App.Vector(7.918155, 13, 0), App.Vector(4.918155, 13, 0)),
    Part.LineSegment(App.Vector(4.918155, 13, 0), App.Vector(4.918155, 21.06, 0)),
    Part.LineSegment(App.Vector(4.918155, 21.06, 0), App.Vector(7.918155, 21.06, 0)),
    Part.LineSegment(App.Vector(7.918155, 21.06, 0), App.Vector(7.918155, 13, 0)),
], False)
sketch9.addConstraint([
    Sketcher.Constraint("Coincident", 0, 2, 1, 1),
    Sketcher.Constraint("Coincident", 1, 2, 2, 1),
    Sketcher.Constraint("Coincident", 2, 2, 3, 1),
    Sketcher.Constraint("Coincident", 3, 2, 0, 1),
    Sketcher.Constraint("Horizontal", 0),
    Sketcher.Constraint("Vertical", 1),
    Sketcher.Constraint("Horizontal", 2),
    Sketcher.Constraint("Vertical", 3),
    Sketcher.Constraint("DistanceX", 0, 2, 0, 1, 3.0),
    Sketcher.Constraint("DistanceY", -1, 1, 0, 2, 13.0),
    Sketcher.Constraint("DistanceY", 1, 1, 1, 2, 8.06),
    Sketcher.Constraint("DistanceX", -1, 1, 0, 2, 4.918155),
])
pocket6 = body.newObject("PartDesign::Pocket", "Pocket005")
pocket6.Profile = sketch9
pocket6.Length = 5
pocket6.Reversed = True

doc.recompute()
